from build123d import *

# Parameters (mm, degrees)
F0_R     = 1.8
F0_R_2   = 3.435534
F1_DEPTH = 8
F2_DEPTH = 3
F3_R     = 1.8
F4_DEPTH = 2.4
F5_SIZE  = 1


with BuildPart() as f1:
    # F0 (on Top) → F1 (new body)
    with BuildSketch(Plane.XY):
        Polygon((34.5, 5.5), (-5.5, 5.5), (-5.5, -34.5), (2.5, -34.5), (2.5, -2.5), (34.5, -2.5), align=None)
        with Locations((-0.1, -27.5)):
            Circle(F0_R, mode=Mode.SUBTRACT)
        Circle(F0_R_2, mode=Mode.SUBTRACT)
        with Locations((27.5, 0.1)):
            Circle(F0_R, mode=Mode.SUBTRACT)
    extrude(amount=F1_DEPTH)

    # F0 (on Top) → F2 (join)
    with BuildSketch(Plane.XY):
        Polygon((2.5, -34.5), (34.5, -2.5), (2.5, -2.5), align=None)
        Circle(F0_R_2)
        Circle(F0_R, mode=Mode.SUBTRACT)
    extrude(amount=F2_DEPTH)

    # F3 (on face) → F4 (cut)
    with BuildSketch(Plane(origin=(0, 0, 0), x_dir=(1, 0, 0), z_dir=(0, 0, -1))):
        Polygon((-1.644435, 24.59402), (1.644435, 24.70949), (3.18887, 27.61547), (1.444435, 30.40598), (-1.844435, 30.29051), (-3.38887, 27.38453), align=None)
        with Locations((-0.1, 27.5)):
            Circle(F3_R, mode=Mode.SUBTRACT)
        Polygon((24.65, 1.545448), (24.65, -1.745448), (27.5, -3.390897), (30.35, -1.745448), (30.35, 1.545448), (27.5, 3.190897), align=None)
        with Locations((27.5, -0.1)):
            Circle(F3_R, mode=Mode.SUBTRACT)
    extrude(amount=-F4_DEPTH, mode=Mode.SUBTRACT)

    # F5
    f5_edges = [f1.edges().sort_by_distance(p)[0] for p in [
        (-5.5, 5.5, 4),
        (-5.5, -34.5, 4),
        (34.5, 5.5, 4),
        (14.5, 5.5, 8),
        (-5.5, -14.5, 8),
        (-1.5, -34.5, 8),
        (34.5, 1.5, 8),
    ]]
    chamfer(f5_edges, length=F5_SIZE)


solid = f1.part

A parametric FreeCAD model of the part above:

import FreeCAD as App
import Part
import Sketcher
Q = App.Units.Quantity


def edges_at(feature, points):
    """Names of the edges that pass closest to the given points."""
    edges = feature.Shape.Edges
    near = lambda p: min(range(len(edges)), key=lambda i: edges[i].distToShape(Part.Vertex(*p))[0])
    return sorted({f"Edge{near(p) + 1}" for p in points})


def add_polygon(sketch, points):
    """Adds a closed chain of lines whose ends are joined by coincident constraints."""
    first, n = sketch.GeometryCount, len(points)
    for a, b in zip(points, points[1:] + points[:1]):
        sketch.addGeometry(Part.LineSegment(App.Vector(*a, 0), App.Vector(*b, 0)), False)
    for i in range(n):
        sketch.addConstraint(Sketcher.Constraint("Coincident", first + i, 2, first + (i + 1) % n, 1))

doc = App.newDocument("Part")
body = doc.addObject("PartDesign::Body", "Body")

sketch1 = body.newObject("Sketcher::SketchObject", "Sketch")
sketch1.AttachmentSupport = (doc.getObject("XY_Plane"), [""])
sketch1.MapMode = "FlatFace"
add_polygon(sketch1, [(34.5, 5.5), (-5.5, 5.5), (-5.5, -34.5), (2.5, -34.5), (2.5, -2.5), (34.5, -2.5)])
sketch1.addGeometry(Part.Circle(App.Vector(-0.1, -27.5, 0), App.Vector(0, 0, 1), 1.8), False)
sketch1.addGeometry(Part.Circle(App.Vector(0, 0, 0), App.Vector(0, 0, 1), 3.435534), False)
sketch1.addGeometry(Part.Circle(App.Vector(27.5, 0.1, 0), App.Vector(0, 0, 1), 1.8), False)
sketch1.addConstraint([
    Sketcher.Constraint("Horizontal", 0),
    Sketcher.Constraint("Vertical", 1),
    Sketcher.Constraint("Horizontal", 2),
    Sketcher.Constraint("Vertical", 3),
    Sketcher.Constraint("Horizontal", 4),
    Sketcher.Constraint("Vertical", 5),
    Sketcher.Constraint("Coincident", 7, 3, -1, 1),
    Sketcher.Constraint("Equal", 6, 8),
    Sketcher.Constraint("Equal", 0, 1),
    Sketcher.Constraint("Equal", 4, 3),
    Sketcher.Constraint("Diameter", 6, 3.6),
    Sketcher.Constraint("DistanceX", 0, 2, 0, 1, 40.0),
    Sketcher.Constraint("DistanceX", 2, 1, 2, 2, 8.0),
    Sketcher.Constraint("DistanceY", 6, 3, 0, 2, 33.0),
    Sketcher.Constraint("DistanceX", 0, 2, 8, 3, 33.0),
    Sketcher.Constraint("DistanceX", 6, 3, -1, 1, 0.1),
    Sketcher.Constraint("DistanceY", 6, 3, -1, 1, 27.5),
    Sketcher.Constraint("DistanceX", -1, 1, 8, 3, 27.5),
    Sketcher.Constraint("DistanceY", -1, 1, 8, 3, 0.1),
    Sketcher.Constraint("Diameter", 7, 6.871068),
])
pad1 = body.newObject("PartDesign::Pad", "Pad")
pad1.Profile = sketch1
pad1.Length = 8

sketch2 = body.newObject("Sketcher::SketchObject", "Sketch001")
sketch2.AttachmentSupport = (doc.getObject("XY_Plane"), [""])
sketch2.MapMode = "FlatFace"
add_polygon(sketch2, [(2.5, -34.5), (34.5, -2.5), (2.5, -2.5)])
sketch2.addGeometry(Part.Circle(App.Vector(0, 0, 0), App.Vector(0, 0, 1), 3.435534), False)
sketch2.addGeometry(Part.Circle(App.Vector(0, 0, 0), App.Vector(0, 0, 1), 1.8), False)
sketch2.addConstraint([
    Sketcher.Constraint("Horizontal", 1),
    Sketcher.Constraint("Vertical", 2),
    Sketcher.Constraint("Coincident", 3, 3, -1, 1),
    Sketcher.Constraint("Coincident", 4, 3, -1, 1),
    Sketcher.Constraint("Equal", 1, 2),
    Sketcher.Constraint("Diameter", 4, 3.6),
    Sketcher.Constraint("DistanceX", 1, 2, 1, 1, 32.0),
    Sketcher.Constraint("DistanceX", -1, 1, 0, 2, 34.5),
    Sketcher.Constraint("DistanceY", 0, 2, -1, 1, 2.5),
    Sketcher.Constraint("Diameter", 3, 6.871068),
])
pad2 = body.newObject("PartDesign::Pad", "Pad001")
pad2.Profile = sketch2
pad2.Length = 3

sketch3 = body.newObject("Sketcher::SketchObject", "Sketch002")
sketch3.AttachmentSupport = (doc.getObject("XY_Plane"), [""])
sketch3.MapMode = "FlatFace"
add_polygon(sketch3, [(-1.644435, -24.59402), (1.644435, -24.70949), (3.18887, -27.61547), (1.444435, -30.40598), (-1.844435, -30.29051), (-3.38887, -27.38453)])
sketch3.addGeometry(Part.Circle(App.Vector(-0.1, -27.5, 0), App.Vector(0, 0, 1), 1.8), False)
add_polygon(sketch3, [(24.65, -1.545448), (24.65, 1.745448), (27.5, 3.390897), (30.35, 1.745448), (30.35, -1.545448), (27.5, -3.190897)])
sketch3.addGeometry(Part.Circle(App.Vector(27.5, 0.1, 0), App.Vector(0, 0, 1), 1.8), False)
sketch3.addConstraint([
    Sketcher.Constraint("Vertical", 7),
    Sketcher.Constraint("Vertical", 10),
    Sketcher.Constraint("Equal", 6, 13),
    Sketcher.Constraint("Parallel", 0, 3),
    Sketcher.Constraint("Parallel", 1, 4),
    Sketcher.Constraint("Parallel", 2, 5),
    Sketcher.Constraint("Parallel", 8, 11),
    Sketcher.Constraint("Parallel", 9, 12),
    Sketcher.Constraint("Horizontal", 7, 2, 9, 2),
    Sketcher.Constraint("Horizontal", 10, 2, 12, 2),
    Sketcher.Constraint("Vertical", 13, 3, 8, 2),
    Sketcher.Constraint("Vertical", 8, 2, 11, 2),
    Sketcher.Constraint("Equal", 0, 1),
    Sketcher.Constraint("Equal", 1, 2),
    Sketcher.Constraint("Equal", 2, 3),
    Sketcher.Constraint("Equal", 5, 8),
    Sketcher.Constraint("Diameter", 6, 3.6),
    Sketcher.Constraint("Angle", 8, Q("30.000011 deg")),
    Sketcher.Constraint("DistanceX", 6, 3, -1, 1, 0.1),
    Sketcher.Constraint("DistanceY", 6, 3, -1, 1, 27.5),
    Sketcher.Constraint("DistanceX", -1, 1, 13, 3, 27.5),
    Sketcher.Constraint("DistanceY", -1, 1, 13, 3, 0.1),
    Sketcher.Constraint("DistanceX", 2, 2, 0, 2, 0.2),
    Sketcher.Constraint("DistanceX", 7, 2, 9, 2, 5.7),
    Sketcher.Constraint("DistanceY", 7, 1, 7, 2, 3.290896),
    Sketcher.Constraint("DistanceY", 0, 2, -1, 1, 24.70949),
    Sketcher.Constraint("DistanceX", -1, 1, 1, 2, 3.18887),
    Sketcher.Constraint("DistanceY", 1, 2, -1, 1, 27.61547),
    Sketcher.Constraint("DistanceY", 3, 2, -1, 1, 30.29051),
    Sketcher.Constraint("DistanceY", -1, 1, 7, 2, 1.745448),
])
pocket1 = body.newObject("PartDesign::Pocket", "Pocket")
pocket1.Profile = sketch3
pocket1.Length = 2.4
pocket1.Reversed = True
doc.recompute()

chamfer = body.newObject("PartDesign::Chamfer", "Chamfer")
chamfer.Base = (pocket1, edges_at(pocket1, [
    (-5.5, 5.5, 4),
    (-5.5, -34.5, 4),
    (34.5, 5.5, 4),
    (14.5, 5.5, 8),
    (-5.5, -14.5, 8),
    (-1.5, -34.5, 8),
    (34.5, 1.5, 8),
]))
chamfer.Size = 1

doc.recompute()
